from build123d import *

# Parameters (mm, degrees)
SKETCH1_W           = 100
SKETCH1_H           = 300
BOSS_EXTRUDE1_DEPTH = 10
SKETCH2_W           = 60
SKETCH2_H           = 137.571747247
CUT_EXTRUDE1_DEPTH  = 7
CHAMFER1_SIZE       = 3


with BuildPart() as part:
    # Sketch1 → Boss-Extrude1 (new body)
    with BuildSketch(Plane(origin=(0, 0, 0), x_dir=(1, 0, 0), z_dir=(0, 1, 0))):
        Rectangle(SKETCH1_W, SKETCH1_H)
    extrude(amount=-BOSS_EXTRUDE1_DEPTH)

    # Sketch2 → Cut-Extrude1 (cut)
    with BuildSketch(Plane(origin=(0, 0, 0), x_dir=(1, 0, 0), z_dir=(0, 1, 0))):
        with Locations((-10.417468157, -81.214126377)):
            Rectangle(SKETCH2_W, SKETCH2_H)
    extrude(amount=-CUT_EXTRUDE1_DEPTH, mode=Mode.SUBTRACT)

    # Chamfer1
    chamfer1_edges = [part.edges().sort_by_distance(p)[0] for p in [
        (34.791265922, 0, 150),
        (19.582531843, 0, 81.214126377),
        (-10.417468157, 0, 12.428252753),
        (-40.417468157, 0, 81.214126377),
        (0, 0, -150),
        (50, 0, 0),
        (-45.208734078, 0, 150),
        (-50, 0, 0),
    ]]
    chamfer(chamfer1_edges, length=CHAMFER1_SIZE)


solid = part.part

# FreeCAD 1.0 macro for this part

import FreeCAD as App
import Part
import Sketcher

V = App.Vector


def edges_at(feature, points):
    """Names of the edges that pass closest to the given points."""
    edges = feature.Shape.Edges
    near = lambda p: min(range(len(edges)), key=lambda i: edges[i].distToShape(Part.Vertex(*p))[0])
    return sorted({f"Edge{near(p) + 1}" for p in points})

doc = App.newDocument("Part")
body = doc.addObject("PartDesign::Body", "Body")

# Sketch on XZ plane
sketch1 = body.newObject("Sketcher::SketchObject", "Sketch")
sketch1.AttachmentSupport = (doc.getObject("XZ_Plane"), [""])
sketch1.MapMode = "FlatFace"
sketch1.addGeometry([
    Part.LineSegment(V(-50, -150, 0), V(-50, 150, 0)),
    Part.LineSegment(V(-50, 150, 0), V(50, 150, 0)),
    Part.LineSegment(V(50, 150, 0), V(50, -150, 0)),
    Part.LineSegment(V(50, -150, 0), V(-50, -150, 0)),
], False)
sketch1.addConstraint([
    Sketcher.Constraint("Coincident", 0, 2, 1, 1),
    Sketcher.Constraint("Coincident", 1, 2, 2, 1),
    Sketcher.Constraint("Coincident", 2, 2, 3, 1),
    Sketcher.Constraint("Coincident", 3, 2, 0, 1),
    Sketcher.Constraint("Vertical", 0),
    Sketcher.Constraint("Horizontal", 1),
    Sketcher.Constraint("Vertical", 2),
    Sketcher.Constraint("Horizontal", 3),
    Sketcher.Constraint("Symmetric", 0, 2, 2, 2, -1, 1),
    Sketcher.Constraint("DistanceX", 1, 1, 1, 2, 100.0),
    Sketcher.Constraint("DistanceY", 0, 1, 0, 2, 300.0),
])
pad1 = body.newObject("PartDesign::Pad", "Pad")
pad1.Profile = sketch1
pad1.Length = 10

# Sketch on XZ plane
sketch2 = body.newObject("Sketcher::SketchObject", "Sketch001")
sketch2.AttachmentSupport = (doc.getObject("XZ_Plane"), [""])
sketch2.MapMode = "FlatFace"
sketch2.addGeometry([
    Part.LineSegment(V(-40.417468, 12.428253, 0), V(-40.417468, 150, 0)),
    Part.LineSegment(V(-40.417468, 150, 0), V(19.582532, 150, 0)),
    Part.LineSegment(V(19.582532, 150, 0), V(19.582532, 12.428253, 0)),
    Part.LineSegment(V(19.582532, 12.428253, 0), V(-40.417468, 12.428253, 0)),
], False)
sketch2.addConstraint([
    Sketcher.Constraint("Coincident", 0, 2, 1, 1),
    Sketcher.Constraint("Coincident", 1, 2, 2, 1),
    Sketcher.Constraint("Coincident", 2, 2, 3, 1),
    Sketcher.Constraint("Coincident", 3, 2, 0, 1),
    Sketcher.Constraint("Vertical", 0),
    Sketcher.Constraint("Horizontal", 1),
    Sketcher.Constraint("Vertical", 2),
    Sketcher.Constraint("Horizontal", 3),
    Sketcher.Constraint("DistanceX", 1, 1, 1, 2, 60.0),
    Sketcher.Constraint("DistanceY", -1, 1, 0, 2, 150.0),
    Sketcher.Constraint("DistanceY", 0, 1, 0, 2, 137.571747),
    Sketcher.Constraint("DistanceX", 0, 2, -1, 1, 40.417468),
])
pocket1 = body.newObject("PartDesign::Pocket", "Pocket")
pocket1.Profile = sketch2
pocket1.Length = 7
pocket1.Reversed = True
doc.recompute()

chamfer = body.newObject("PartDesign::Chamfer", "Chamfer")
chamfer.Base = (pocket1, edges_at(pocket1, [
    (34.791, 0, 150),
    (19.583, 0, 81.214),
    (-10.417, 0, 12.428),
    (-40.417, 0, 81.214),
    (0, 0, -150),
    (50, 0, 0),
    (-45.209, 0, 150),
    (-50, 0, 0),
]))
chamfer.Size = 3

doc.recompute()
